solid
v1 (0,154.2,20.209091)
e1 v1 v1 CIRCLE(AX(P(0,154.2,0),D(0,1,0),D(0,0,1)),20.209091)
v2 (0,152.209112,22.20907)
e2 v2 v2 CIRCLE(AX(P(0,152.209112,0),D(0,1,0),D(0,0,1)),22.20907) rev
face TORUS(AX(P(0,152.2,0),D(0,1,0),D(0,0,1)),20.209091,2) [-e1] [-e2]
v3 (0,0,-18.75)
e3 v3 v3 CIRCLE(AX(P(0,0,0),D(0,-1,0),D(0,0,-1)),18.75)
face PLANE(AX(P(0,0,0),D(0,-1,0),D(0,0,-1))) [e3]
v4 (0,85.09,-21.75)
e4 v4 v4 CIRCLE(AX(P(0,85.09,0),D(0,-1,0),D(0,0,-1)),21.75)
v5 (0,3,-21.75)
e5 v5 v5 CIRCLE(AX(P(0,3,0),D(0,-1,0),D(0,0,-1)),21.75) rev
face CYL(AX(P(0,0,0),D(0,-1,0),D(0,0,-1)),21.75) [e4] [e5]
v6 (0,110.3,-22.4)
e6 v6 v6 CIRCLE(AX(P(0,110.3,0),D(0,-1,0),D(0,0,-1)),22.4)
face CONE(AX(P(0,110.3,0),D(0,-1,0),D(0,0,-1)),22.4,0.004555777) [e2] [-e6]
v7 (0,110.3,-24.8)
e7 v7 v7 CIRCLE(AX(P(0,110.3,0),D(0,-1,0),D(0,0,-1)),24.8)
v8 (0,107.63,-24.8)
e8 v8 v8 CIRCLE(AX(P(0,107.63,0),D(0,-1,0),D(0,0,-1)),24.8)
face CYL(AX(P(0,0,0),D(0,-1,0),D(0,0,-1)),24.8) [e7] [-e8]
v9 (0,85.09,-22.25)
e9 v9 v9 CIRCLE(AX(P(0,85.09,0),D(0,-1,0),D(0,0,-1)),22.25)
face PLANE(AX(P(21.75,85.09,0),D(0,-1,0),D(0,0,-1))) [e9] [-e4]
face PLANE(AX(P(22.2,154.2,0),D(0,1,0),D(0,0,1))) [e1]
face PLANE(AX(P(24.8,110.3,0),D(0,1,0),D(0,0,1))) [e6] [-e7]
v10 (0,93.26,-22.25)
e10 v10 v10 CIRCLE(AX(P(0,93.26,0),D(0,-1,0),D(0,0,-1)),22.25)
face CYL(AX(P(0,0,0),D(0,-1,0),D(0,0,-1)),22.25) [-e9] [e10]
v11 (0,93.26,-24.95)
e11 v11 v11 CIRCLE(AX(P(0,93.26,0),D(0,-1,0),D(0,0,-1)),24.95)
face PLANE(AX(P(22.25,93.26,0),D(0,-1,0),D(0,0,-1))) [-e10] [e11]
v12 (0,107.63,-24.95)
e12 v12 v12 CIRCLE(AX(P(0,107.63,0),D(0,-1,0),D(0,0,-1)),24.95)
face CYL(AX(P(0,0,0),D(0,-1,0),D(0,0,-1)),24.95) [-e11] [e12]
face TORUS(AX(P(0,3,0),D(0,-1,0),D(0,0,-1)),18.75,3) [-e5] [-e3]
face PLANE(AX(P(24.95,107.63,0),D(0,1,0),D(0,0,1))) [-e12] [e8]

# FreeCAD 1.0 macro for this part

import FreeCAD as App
import Part
import Sketcher
Q = App.Units.Quantity


def edges_at(feature, points):
    """Names of the edges that pass closest to the given points."""
    edges = feature.Shape.Edges
    near = lambda p: min(range(len(edges)), key=lambda i: edges[i].distToShape(Part.Vertex(*p))[0])
    return sorted({f"Edge{near(p) + 1}" for p in points})

doc = App.newDocument("Part")
body = doc.addObject("PartDesign::Body", "Body")

# Sketch on XY plane
sketch1 = body.newObject("Sketcher::SketchObject", "Sketch")
sketch1.AttachmentSupport = (doc.getObject("XY_Plane"), [""])
sketch1.MapMode = "FlatFace"
sketch1.addGeometry([
    Part.LineSegment(App.Vector(0, 154.2, 0), App.Vector(0, 0, 0)),  # 0
    Part.LineSegment(App.Vector(0, 0, 0), App.Vector(21.75, 0, 0)),  # 1
    Part.LineSegment(App.Vector(21.75, 0, 0), App.Vector(21.75, 85.09, 0)),  # 2
    Part.LineSegment(App.Vector(21.75, 85.09, 0), App.Vector(22.25, 85.09, 0)),  # 3
    Part.LineSegment(App.Vector(22.25, 85.09, 0), App.Vector(22.25, 93.26, 0)),  # 4
    Part.LineSegment(App.Vector(22.25, 93.26, 0), App.Vector(24.95, 93.26, 0)),  # 5
    Part.LineSegment(App.Vector(24.95, 93.26, 0), App.Vector(24.95, 107.63, 0)),  # 6
    Part.LineSegment(App.Vector(24.95, 107.63, 0), App.Vector(24.8, 107.63, 0)),  # 7
    Part.LineSegment(App.Vector(24.8, 107.63, 0), App.Vector(24.8, 110.3, 0)),  # 8
    Part.LineSegment(App.Vector(24.8, 110.3, 0), App.Vector(22.4, 110.3, 0)),  # 9
    Part.LineSegment(App.Vector(22.4, 110.3, 0), App.Vector(22.2, 154.2, 0)),  # 10
    Part.LineSegment(App.Vector(22.2, 154.2, 0), App.Vector(0, 154.2, 0)),  # 11
], False)
sketch1.addConstraint([
    Sketcher.Constraint("Coincident", 0, 2, 1, 1),
    Sketcher.Constraint("Coincident", 1, 2, 2, 1),
    Sketcher.Constraint("Coincident", 2, 2, 3, 1),
    Sketcher.Constraint("Coincident", 3, 2, 4, 1),
    Sketcher.Constraint("Coincident", 4, 2, 5, 1),
    Sketcher.Constraint("Coincident", 5, 2, 6, 1),
    Sketcher.Constraint("Coincident", 6, 2, 7, 1),
    Sketcher.Constraint("Coincident", 7, 2, 8, 1),
    Sketcher.Constraint("Coincident", 8, 2, 9, 1),
    Sketcher.Constraint("Coincident", 9, 2, 10, 1),
    Sketcher.Constraint("Coincident", 10, 2, 11, 1),
    Sketcher.Constraint("Coincident", 11, 2, 0, 1),
    Sketcher.Constraint("Vertical", 0),
    Sketcher.Constraint("Horizontal", 1),
    Sketcher.Constraint("Vertical", 2),
    Sketcher.Constraint("Horizontal", 3),
    Sketcher.Constraint("Vertical", 4),
    Sketcher.Constraint("Horizontal", 5),
    Sketcher.Constraint("Vertical", 6),
    Sketcher.Constraint("Horizontal", 7),
    Sketcher.Constraint("Vertical", 8),
    Sketcher.Constraint("Horizontal", 9),
    Sketcher.Constraint("Horizontal", 11),
    Sketcher.Constraint("Coincident", 0, 2, -1, 1),
    Sketcher.Constraint("DistanceX", 3, 1, 3, 2, Q("0.5 mm")),
    Sketcher.Constraint("DistanceX", 5, 1, 5, 2, Q("2.7 mm")),
    Sketcher.Constraint("DistanceX", 9, 2, 9, 1, Q("2.4 mm")),
    Sketcher.Constraint("DistanceX", 11, 2, 11, 1, Q("22.2 mm")),
    Sketcher.Constraint("DistanceY", 0, 2, 0, 1, Q("154.2 mm")),
    Sketcher.Constraint("DistanceX", 1, 1, 1, 2, Q("21.75 mm")),
    Sketcher.Constraint("DistanceX", 7, 2, 7, 1, Q("0.15 mm")),
    Sketcher.Constraint("DistanceY", 2, 1, 2, 2, Q("85.09 mm")),
    Sketcher.Constraint("DistanceY", 4, 1, 4, 2, Q("8.17 mm")),
    Sketcher.Constraint("DistanceY", 6, 1, 6, 2, Q("14.37 mm")),
    Sketcher.Constraint("DistanceY", 8, 1, 8, 2, Q("2.67 mm")),
])
revolution = body.newObject("PartDesign::Revolution", "Revolution")
revolution.Profile = sketch1
revolution.ReferenceAxis = (sketch1, ["V_Axis"])
revolution.Angle = 360
doc.recompute()

fillet = body.newObject("PartDesign::Fillet", "Fillet")
fillet.Base = (revolution, edges_at(revolution, [(0, 154.2, 22.2)]))
fillet.Radius = 2
doc.recompute()

fillet2 = body.newObject("PartDesign::Fillet", "Fillet001")
fillet2.Base = (fillet, edges_at(fillet, [(0, 0, 21.75)]))
fillet2.Radius = 3

doc.recompute()
